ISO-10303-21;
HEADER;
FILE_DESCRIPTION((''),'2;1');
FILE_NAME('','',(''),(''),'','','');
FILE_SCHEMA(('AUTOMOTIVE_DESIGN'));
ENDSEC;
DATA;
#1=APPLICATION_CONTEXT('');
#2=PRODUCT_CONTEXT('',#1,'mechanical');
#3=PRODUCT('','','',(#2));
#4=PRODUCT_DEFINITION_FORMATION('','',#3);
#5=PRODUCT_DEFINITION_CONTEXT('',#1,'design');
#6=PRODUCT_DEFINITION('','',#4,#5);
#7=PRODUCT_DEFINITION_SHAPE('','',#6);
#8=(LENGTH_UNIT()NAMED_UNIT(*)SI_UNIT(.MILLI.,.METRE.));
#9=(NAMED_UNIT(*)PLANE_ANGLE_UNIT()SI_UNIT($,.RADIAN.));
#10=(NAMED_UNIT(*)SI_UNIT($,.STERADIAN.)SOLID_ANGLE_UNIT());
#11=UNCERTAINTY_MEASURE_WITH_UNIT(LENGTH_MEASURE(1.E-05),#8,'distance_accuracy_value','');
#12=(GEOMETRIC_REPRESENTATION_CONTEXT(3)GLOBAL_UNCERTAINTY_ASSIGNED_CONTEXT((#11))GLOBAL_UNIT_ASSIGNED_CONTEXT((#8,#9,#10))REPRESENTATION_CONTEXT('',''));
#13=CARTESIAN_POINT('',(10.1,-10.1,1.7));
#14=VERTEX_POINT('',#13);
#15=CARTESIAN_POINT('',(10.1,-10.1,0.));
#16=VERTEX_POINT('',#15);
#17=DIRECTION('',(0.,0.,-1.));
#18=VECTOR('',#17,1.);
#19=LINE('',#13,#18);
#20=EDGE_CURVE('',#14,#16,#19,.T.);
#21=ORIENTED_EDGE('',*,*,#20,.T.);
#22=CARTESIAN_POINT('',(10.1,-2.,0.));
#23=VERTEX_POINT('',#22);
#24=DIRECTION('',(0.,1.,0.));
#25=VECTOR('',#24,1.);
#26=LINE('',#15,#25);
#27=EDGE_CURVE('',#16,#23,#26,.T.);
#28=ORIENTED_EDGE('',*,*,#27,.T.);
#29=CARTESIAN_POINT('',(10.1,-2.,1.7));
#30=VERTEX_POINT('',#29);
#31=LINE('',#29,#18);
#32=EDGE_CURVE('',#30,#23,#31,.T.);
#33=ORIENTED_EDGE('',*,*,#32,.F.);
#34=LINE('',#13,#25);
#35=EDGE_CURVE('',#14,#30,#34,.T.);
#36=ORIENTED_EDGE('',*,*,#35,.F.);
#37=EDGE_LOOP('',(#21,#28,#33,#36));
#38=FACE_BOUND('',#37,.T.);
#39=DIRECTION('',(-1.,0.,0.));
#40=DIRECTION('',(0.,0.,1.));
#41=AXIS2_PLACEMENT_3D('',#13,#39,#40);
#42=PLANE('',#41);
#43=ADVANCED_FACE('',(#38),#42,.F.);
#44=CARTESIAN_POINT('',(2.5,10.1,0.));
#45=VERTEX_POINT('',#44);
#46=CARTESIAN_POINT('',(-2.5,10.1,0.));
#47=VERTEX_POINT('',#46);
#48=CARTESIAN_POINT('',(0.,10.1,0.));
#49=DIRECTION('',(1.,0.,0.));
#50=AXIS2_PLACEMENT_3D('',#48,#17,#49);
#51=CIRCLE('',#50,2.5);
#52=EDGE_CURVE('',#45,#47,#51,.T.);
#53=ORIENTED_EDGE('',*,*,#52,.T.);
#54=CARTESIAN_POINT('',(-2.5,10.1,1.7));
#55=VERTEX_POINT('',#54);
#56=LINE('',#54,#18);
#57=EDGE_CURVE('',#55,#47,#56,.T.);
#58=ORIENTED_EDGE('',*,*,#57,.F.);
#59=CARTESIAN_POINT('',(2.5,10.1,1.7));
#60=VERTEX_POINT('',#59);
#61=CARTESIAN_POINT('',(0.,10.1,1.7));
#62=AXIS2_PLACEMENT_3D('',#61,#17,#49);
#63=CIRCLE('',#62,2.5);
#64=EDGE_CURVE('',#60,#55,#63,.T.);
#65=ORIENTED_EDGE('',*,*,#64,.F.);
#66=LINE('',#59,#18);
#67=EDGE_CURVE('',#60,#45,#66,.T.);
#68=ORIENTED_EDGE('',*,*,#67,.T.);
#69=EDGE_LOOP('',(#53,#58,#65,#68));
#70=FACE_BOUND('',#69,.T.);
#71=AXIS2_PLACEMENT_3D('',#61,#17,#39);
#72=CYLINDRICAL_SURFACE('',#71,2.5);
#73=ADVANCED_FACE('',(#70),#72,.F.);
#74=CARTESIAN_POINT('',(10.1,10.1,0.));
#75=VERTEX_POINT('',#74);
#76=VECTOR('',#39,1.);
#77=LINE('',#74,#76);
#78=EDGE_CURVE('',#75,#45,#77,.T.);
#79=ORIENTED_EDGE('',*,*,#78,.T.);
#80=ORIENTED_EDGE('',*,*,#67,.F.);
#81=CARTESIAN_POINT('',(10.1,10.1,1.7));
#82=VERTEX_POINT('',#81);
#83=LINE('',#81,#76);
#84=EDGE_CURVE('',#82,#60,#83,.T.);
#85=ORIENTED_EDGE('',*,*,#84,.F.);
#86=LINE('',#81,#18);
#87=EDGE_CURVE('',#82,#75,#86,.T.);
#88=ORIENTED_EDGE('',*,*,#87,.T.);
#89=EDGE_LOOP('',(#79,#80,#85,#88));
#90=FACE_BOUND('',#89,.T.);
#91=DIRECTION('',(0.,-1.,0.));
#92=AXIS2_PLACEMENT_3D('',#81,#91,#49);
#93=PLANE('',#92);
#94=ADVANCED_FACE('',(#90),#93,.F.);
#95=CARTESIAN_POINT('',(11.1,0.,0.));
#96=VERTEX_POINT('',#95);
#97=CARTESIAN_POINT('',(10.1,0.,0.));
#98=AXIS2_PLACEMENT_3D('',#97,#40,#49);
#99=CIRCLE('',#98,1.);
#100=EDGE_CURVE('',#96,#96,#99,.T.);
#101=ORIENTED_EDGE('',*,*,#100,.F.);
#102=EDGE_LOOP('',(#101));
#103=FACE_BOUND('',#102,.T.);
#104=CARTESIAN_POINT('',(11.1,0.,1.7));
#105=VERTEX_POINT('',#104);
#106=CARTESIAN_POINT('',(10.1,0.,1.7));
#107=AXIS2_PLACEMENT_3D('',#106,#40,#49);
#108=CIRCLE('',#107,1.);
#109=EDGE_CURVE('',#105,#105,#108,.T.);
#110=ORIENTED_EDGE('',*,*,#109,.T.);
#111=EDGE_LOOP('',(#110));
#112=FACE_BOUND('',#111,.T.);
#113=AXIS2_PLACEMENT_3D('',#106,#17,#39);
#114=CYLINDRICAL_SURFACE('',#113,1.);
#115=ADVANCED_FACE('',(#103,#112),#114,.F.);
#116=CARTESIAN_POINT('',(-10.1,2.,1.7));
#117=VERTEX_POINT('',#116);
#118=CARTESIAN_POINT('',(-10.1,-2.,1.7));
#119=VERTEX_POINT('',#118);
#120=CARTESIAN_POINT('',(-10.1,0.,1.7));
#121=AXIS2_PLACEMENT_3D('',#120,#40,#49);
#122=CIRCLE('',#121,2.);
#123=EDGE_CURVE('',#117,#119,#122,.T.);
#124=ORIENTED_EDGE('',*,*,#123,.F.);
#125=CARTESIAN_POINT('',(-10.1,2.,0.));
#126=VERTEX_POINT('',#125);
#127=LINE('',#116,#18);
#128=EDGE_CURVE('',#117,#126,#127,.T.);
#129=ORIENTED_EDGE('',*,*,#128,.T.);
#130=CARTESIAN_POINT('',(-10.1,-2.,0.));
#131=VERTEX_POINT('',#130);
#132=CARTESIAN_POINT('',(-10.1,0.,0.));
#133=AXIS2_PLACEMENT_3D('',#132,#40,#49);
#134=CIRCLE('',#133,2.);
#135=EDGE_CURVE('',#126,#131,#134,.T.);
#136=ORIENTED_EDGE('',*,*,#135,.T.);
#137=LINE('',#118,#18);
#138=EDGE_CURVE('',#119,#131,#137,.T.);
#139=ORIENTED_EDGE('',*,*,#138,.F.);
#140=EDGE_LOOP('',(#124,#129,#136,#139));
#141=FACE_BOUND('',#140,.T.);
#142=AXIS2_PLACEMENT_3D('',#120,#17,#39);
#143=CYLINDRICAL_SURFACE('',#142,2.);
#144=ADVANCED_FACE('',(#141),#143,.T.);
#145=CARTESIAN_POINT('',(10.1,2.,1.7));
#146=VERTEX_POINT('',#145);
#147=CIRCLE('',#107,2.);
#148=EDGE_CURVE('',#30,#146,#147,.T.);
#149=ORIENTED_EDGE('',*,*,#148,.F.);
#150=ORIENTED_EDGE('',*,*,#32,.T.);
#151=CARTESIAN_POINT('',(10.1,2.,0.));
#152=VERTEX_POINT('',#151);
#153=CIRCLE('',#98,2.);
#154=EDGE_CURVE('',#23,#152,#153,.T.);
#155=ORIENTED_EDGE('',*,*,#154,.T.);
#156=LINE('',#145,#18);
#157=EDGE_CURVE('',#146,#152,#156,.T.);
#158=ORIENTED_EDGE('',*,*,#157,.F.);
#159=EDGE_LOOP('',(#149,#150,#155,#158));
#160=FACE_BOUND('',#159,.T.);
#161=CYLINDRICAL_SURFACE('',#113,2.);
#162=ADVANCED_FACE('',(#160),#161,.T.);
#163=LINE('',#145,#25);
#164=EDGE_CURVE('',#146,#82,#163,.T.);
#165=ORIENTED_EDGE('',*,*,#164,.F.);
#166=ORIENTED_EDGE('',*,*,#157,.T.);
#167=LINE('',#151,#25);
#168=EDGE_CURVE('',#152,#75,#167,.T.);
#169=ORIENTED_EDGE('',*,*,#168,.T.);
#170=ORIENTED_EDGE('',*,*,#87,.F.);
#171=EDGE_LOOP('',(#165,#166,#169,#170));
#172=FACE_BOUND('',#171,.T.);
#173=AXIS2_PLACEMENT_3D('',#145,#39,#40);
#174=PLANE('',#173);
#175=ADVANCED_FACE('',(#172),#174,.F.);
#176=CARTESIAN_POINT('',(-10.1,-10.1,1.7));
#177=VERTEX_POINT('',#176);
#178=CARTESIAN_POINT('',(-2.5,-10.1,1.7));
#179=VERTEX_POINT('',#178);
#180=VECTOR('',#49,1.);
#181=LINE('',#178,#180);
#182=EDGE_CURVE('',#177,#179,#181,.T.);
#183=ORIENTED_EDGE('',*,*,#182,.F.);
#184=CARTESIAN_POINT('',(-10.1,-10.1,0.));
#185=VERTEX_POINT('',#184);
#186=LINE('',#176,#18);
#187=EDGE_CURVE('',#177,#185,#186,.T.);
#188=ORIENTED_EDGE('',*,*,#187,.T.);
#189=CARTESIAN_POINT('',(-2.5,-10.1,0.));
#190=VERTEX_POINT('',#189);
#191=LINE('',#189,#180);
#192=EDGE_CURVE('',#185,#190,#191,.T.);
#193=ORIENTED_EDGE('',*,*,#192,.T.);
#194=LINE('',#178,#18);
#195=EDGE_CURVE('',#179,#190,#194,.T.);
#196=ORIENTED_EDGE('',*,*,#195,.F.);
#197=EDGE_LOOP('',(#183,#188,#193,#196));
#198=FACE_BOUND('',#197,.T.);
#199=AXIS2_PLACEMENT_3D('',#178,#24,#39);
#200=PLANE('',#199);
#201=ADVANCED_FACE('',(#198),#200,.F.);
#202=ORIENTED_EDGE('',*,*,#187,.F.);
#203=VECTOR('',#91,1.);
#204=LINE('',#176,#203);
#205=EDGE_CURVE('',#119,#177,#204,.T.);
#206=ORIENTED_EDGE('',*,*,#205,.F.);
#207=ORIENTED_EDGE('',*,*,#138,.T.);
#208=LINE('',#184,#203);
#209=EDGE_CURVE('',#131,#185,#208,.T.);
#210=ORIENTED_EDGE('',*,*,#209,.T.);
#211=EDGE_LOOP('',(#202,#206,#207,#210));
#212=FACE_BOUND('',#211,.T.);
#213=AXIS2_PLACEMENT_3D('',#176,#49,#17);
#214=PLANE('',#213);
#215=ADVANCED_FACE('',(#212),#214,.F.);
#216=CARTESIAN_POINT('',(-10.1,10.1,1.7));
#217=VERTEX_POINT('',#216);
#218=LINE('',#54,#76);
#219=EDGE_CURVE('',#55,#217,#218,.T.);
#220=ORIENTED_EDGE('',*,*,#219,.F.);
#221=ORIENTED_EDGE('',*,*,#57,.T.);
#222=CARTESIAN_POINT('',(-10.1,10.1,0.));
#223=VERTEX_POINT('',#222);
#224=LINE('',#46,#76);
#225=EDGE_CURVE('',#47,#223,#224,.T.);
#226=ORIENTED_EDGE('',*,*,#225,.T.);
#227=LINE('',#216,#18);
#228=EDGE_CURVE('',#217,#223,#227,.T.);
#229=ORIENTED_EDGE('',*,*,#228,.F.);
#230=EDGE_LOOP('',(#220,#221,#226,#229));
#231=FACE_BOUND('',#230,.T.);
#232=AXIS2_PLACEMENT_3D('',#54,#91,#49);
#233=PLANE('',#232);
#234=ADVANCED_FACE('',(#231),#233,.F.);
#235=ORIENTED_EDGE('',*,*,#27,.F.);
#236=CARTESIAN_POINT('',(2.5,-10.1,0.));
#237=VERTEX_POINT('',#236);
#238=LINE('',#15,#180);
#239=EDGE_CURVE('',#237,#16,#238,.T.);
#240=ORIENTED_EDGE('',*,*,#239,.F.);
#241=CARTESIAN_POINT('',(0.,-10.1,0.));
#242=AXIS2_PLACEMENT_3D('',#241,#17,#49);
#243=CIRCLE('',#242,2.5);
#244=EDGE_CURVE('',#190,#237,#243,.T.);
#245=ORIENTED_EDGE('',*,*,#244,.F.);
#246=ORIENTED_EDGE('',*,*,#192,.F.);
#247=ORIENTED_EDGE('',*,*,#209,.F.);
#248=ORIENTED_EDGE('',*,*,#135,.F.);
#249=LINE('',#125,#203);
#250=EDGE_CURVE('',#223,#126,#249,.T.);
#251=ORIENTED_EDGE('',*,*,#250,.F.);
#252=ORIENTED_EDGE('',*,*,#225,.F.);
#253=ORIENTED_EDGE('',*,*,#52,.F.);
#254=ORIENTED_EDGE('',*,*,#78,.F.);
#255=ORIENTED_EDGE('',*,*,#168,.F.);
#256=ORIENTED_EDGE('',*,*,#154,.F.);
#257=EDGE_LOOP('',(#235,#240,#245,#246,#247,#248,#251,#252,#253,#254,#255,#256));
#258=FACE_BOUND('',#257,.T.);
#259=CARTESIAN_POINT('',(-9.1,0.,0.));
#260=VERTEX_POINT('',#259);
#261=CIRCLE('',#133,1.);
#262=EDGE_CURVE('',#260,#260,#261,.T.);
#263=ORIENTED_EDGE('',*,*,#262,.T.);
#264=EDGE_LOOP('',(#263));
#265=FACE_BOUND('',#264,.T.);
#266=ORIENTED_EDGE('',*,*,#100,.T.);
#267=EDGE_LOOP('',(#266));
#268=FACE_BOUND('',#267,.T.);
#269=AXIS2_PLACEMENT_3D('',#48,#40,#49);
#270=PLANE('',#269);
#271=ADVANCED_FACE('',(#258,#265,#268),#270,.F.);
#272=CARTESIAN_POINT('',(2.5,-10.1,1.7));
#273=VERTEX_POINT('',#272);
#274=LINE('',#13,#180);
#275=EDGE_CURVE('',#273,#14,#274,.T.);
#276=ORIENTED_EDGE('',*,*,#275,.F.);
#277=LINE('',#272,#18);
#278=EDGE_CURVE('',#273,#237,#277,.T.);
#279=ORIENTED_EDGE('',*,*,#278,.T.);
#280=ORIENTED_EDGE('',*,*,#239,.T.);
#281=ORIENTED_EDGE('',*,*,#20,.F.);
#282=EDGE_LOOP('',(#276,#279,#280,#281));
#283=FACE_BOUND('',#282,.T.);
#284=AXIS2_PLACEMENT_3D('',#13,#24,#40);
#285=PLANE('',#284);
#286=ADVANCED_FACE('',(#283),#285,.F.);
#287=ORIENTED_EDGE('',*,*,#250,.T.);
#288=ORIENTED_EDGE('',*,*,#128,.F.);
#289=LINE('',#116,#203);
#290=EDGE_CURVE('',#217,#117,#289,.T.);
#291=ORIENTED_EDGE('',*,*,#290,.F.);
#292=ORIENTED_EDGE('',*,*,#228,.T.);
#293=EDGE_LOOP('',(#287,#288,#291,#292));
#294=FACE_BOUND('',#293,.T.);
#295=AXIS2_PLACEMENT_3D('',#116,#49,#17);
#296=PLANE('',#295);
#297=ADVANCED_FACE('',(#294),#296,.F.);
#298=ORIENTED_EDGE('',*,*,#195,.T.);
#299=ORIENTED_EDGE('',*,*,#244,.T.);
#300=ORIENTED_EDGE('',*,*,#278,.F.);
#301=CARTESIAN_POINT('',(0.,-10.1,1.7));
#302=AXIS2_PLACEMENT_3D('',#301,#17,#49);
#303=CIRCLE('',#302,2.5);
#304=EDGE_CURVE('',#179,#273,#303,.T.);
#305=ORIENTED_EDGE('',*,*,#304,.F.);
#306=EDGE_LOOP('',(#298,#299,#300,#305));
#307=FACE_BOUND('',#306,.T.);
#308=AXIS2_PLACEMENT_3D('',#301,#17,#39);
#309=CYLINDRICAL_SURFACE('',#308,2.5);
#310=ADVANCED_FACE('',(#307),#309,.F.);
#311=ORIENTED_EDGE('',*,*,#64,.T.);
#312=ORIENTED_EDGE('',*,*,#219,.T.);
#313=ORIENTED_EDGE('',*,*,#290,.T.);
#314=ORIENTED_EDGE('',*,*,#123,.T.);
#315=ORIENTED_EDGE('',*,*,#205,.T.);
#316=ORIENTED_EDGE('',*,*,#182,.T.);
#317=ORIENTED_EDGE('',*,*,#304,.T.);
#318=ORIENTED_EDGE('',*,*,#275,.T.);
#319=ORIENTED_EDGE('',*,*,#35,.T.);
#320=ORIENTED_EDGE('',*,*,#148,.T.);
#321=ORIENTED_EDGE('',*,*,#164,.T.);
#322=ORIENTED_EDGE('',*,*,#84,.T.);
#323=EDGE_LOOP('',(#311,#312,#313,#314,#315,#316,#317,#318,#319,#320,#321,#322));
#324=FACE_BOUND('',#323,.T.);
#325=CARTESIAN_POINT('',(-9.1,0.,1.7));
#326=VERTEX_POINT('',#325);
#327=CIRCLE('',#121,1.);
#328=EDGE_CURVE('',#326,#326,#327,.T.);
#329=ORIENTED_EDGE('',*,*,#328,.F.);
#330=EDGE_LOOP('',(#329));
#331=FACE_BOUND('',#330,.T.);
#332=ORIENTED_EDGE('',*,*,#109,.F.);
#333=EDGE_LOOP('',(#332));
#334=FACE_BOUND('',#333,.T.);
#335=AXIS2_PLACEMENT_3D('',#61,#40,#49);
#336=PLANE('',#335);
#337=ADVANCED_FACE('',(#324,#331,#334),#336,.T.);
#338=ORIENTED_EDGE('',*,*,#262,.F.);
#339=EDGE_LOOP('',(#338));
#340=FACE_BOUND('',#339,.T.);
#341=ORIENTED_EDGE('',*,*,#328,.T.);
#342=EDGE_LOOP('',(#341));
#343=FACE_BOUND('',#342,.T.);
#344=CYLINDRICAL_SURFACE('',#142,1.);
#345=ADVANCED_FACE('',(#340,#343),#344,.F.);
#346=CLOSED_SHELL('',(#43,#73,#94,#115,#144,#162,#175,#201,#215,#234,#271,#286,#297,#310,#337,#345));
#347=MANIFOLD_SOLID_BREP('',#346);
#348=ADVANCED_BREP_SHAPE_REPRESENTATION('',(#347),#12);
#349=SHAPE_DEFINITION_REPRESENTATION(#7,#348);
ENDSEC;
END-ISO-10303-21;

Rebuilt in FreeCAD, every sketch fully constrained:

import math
import FreeCAD as App
import Part
import Sketcher
from FreeCAD import Vector
Q = App.Units.Quantity

doc = App.newDocument("Part")
body = doc.addObject("PartDesign::Body", "Body")

sketch1 = body.newObject("Sketcher::SketchObject", "Sketch")
sketch1.AttachmentSupport = (doc.getObject("XY_Plane"), [""])
sketch1.MapMode = "FlatFace"
sketch1.addGeometry([
    Part.LineSegment(Vector(-2.5, 10.1, 0), Vector(-10.1, 10.1, 0)),
    Part.LineSegment(Vector(-10.1, 10.1, 0), Vector(-10.1, 2, 0)),
    Part.ArcOfCircle(Part.Circle(Vector(-10.1, 0, 0), Vector(0, 0, 1), 2), math.radians(90), math.radians(270)),
    Part.LineSegment(Vector(-10.1, -2, 0), Vector(-10.1, -10.1, 0)),
    Part.LineSegment(Vector(-10.1, -10.1, 0), Vector(-2.5, -10.1, 0)),
    Part.ArcOfCircle(Part.Circle(Vector(0, -10.1, 0), Vector(0, 0, 1), 2.5), math.radians(0), math.radians(180)),
    Part.LineSegment(Vector(2.5, -10.1, 0), Vector(10.1, -10.1, 0)),
    Part.LineSegment(Vector(10.1, -10.1, 0), Vector(10.1, -2, 0)),
    Part.ArcOfCircle(Part.Circle(Vector(10.1, 0, 0), Vector(0, 0, 1), 2), math.radians(-90), math.radians(90)),
    Part.LineSegment(Vector(10.1, 2, 0), Vector(10.1, 10.1, 0)),
    Part.LineSegment(Vector(10.1, 10.1, 0), Vector(2.5, 10.1, 0)),
    Part.ArcOfCircle(Part.Circle(Vector(0, 10.1, 0), Vector(0, 0, 1), 2.5), math.radians(180), math.radians(360)),
    Part.Circle(Vector(-10.1, 0, 0), Vector(0, 0, 1), 1),
    Part.Circle(Vector(10.1, 0, 0), Vector(0, 0, 1), 1),
], False)
sketch1.addConstraint([
    Sketcher.Constraint("Coincident", 0, 2, 1, 1),
    Sketcher.Constraint("Coincident", 1, 2, 2, 1),
    Sketcher.Constraint("Coincident", 2, 2, 3, 1),
    Sketcher.Constraint("Coincident", 3, 2, 4, 1),
    Sketcher.Constraint("Coincident", 4, 2, 5, 2),
    Sketcher.Constraint("Coincident", 5, 1, 6, 1),
    Sketcher.Constraint("Coincident", 6, 2, 7, 1),
    Sketcher.Constraint("Coincident", 7, 2, 8, 1),
    Sketcher.Constraint("Coincident", 8, 2, 9, 1),
    Sketcher.Constraint("Coincident", 9, 2, 10, 1),
    Sketcher.Constraint("Coincident", 10, 2, 11, 2),
    Sketcher.Constraint("Coincident", 11, 1, 0, 1),
    Sketcher.Constraint("Horizontal", 0),
    Sketcher.Constraint("Vertical", 1),
    Sketcher.Constraint("Vertical", 3),
    Sketcher.Constraint("Horizontal", 4),
    Sketcher.Constraint("Horizontal", 6),
    Sketcher.Constraint("Vertical", 7),
    Sketcher.Constraint("Vertical", 9),
    Sketcher.Constraint("Horizontal", 10),
    Sketcher.Constraint("Coincident", 12, 3, 2, 3),
    Sketcher.Constraint("Coincident", 13, 3, 8, 3),
    Sketcher.Constraint("Equal", 2, 8),
    Sketcher.Constraint("Equal", 5, 11),
    Sketcher.Constraint("Equal", 12, 13),
    Sketcher.Constraint("Symmetric", 2, 3, 8, 3, -1, 1),
    Sketcher.Constraint("Symmetric", 5, 3, 11, 3, -1, 1),
    Sketcher.Constraint("Symmetric", 0, 2, 6, 2, -1, 1),
    Sketcher.Constraint("Symmetric", 3, 2, 9, 2, -1, 1),
    Sketcher.Constraint("Symmetric", 4, 2, 5, 1, -2),
    Sketcher.Constraint("Symmetric", 2, 2, 7, 2, -2),
    Sketcher.Constraint("Horizontal", 11, 3, 0, 2),
    Sketcher.Constraint("Vertical", 12, 3, 0, 2),
    Sketcher.Constraint("Diameter", 12, Q("2 mm")),
    Sketcher.Constraint("Radius", 2, Q("2 mm")),
    Sketcher.Constraint("Radius", 5, Q("2.5 mm")),
    Sketcher.Constraint("DistanceX", 0, 2, 0, 1, Q("7.6 mm")),
    Sketcher.Constraint("DistanceY", 1, 2, 1, 1, Q("8.1 mm")),
])
pad1 = body.newObject("PartDesign::Pad", "Pad")
pad1.Profile = sketch1
pad1.Length = 1.7

doc.recompute()
